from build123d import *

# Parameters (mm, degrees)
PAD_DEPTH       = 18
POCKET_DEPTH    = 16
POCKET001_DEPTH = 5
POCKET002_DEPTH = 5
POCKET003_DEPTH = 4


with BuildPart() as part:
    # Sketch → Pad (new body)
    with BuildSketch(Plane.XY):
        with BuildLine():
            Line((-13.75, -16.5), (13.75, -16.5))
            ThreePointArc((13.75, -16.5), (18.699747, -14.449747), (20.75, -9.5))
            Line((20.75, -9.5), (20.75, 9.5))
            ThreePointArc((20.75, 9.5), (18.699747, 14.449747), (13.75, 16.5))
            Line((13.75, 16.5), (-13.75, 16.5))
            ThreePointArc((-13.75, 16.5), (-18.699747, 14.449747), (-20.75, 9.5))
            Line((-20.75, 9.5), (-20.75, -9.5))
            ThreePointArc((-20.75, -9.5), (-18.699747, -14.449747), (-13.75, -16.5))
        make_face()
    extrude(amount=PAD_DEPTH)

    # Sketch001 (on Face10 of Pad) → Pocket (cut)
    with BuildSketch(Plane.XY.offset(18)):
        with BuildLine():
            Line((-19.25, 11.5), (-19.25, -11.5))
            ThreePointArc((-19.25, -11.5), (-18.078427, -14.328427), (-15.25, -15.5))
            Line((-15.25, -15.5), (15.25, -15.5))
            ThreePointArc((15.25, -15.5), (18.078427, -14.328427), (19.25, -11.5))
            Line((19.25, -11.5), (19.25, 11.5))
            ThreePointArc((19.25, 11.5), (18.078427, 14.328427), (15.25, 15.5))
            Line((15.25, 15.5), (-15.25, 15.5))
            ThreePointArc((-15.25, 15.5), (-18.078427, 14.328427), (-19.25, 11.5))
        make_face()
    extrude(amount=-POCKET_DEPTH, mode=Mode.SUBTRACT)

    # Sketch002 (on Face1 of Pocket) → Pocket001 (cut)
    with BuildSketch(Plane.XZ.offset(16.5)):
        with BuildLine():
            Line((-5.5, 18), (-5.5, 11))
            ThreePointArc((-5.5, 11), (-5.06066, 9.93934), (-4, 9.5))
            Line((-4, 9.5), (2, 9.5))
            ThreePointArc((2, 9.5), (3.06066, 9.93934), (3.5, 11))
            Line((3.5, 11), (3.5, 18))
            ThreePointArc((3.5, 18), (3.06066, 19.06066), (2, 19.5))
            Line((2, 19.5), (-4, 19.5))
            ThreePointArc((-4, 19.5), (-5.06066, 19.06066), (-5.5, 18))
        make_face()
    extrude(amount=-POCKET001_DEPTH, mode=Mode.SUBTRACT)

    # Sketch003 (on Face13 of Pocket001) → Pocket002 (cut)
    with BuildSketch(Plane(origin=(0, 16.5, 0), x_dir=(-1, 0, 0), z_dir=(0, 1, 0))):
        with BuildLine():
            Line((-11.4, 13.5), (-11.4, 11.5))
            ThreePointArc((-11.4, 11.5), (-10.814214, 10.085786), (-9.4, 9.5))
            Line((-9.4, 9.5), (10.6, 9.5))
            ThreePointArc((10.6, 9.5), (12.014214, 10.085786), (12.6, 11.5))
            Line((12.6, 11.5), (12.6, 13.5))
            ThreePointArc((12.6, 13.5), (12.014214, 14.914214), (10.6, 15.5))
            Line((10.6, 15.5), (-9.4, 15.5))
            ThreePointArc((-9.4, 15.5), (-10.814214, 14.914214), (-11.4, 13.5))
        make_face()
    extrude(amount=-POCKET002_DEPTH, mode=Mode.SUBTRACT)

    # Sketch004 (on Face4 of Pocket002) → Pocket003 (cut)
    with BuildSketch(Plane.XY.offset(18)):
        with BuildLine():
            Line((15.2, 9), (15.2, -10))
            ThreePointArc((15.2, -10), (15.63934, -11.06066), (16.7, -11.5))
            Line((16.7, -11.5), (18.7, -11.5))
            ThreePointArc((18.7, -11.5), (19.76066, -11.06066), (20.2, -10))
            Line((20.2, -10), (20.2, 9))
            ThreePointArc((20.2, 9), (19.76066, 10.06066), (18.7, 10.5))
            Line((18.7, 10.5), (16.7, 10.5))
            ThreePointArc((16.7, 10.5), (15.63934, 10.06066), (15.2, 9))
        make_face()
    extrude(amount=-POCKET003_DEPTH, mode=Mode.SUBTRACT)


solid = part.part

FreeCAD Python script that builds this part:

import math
import FreeCAD as App
import Part
import Sketcher

V = App.Vector
Q = App.Units.Quantity

doc = App.newDocument("Part")
body = doc.addObject("PartDesign::Body", "Body")

# Sketch on XY plane
sketch1 = body.newObject("Sketcher::SketchObject", "Sketch")
sketch1.AttachmentSupport = (doc.getObject("XY_Plane"), [""])
sketch1.MapMode = "FlatFace"
sketch1.addGeometry([
    Part.LineSegment(V(-13.75, -16.5, 0), V(13.75, -16.5, 0)),  # 0
    Part.ArcOfCircle(Part.Circle(V(13.749998, -9.499998, 0), V(0, 0, 1), 7.000002), math.radians(-89.999987), math.radians(-0.000013)),  # 1
    Part.LineSegment(V(20.75, -9.5, 0), V(20.75, 9.5, 0)),  # 2
    Part.ArcOfCircle(Part.Circle(V(13.749998, 9.499998, 0), V(0, 0, 1), 7.000002), math.radians(0.000013), math.radians(89.999987)),  # 3
    Part.LineSegment(V(13.75, 16.5, 0), V(-13.75, 16.5, 0)),  # 4
    Part.ArcOfCircle(Part.Circle(V(-13.749998, 9.499998, 0), V(0, 0, 1), 7.000002), math.radians(90.000013), math.radians(179.999987)),  # 5
    Part.LineSegment(V(-20.75, 9.5, 0), V(-20.75, -9.5, 0)),  # 6
    Part.ArcOfCircle(Part.Circle(V(-13.749998, -9.499998, 0), V(0, 0, 1), 7.000002), math.radians(-179.999987), math.radians(-90.000013)),  # 7
], False)
sketch1.addConstraint([
    Sketcher.Constraint("Tangent", 0, 2, 1, 1),
    Sketcher.Constraint("Tangent", 1, 2, 2, 1),
    Sketcher.Constraint("Tangent", 2, 2, 3, 1),
    Sketcher.Constraint("Tangent", 3, 2, 4, 1),
    Sketcher.Constraint("Tangent", 4, 2, 5, 1),
    Sketcher.Constraint("Tangent", 5, 2, 6, 1),
    Sketcher.Constraint("Tangent", 6, 2, 7, 1),
    Sketcher.Constraint("Tangent", 7, 2, 0, 1),
    Sketcher.Constraint("Horizontal", 0),
    Sketcher.Constraint("Vertical", 2),
    Sketcher.Constraint("Horizontal", 4),
    Sketcher.Constraint("Vertical", 6),
    Sketcher.Constraint("Equal", 1, 3),
    Sketcher.Constraint("Equal", 3, 5),
    Sketcher.Constraint("Equal", 5, 7),
    Sketcher.Constraint("Symmetric", 1, 3, 5, 3, -1, 1),
    Sketcher.Constraint("Radius", 1, Q("7.000002 mm")),
    Sketcher.Constraint("DistanceY", 2, 1, 2, 2, Q("19 mm")),
    Sketcher.Constraint("DistanceX", 0, 1, 0, 2, Q("27.5 mm")),
])
pad1 = body.newObject("PartDesign::Pad", "Pad")
pad1.Profile = sketch1
pad1.Length = 18

# Sketch on XY plane
sketch2 = body.newObject("Sketcher::SketchObject", "Sketch001")
sketch2.AttachmentSupport = (doc.getObject("XY_Plane"), [""])
sketch2.MapMode = "FlatFace"
sketch2.AttachmentOffset = App.Placement(V(0, 0, 18), App.Rotation())
sketch2.addGeometry([
    Part.LineSegment(V(-19.25, 11.5, 0), V(-19.25, -11.5, 0)),  # 0
    Part.ArcOfCircle(Part.Circle(V(-15.25, -11.5, 0), V(0, 0, 1), 4), math.radians(-179.999994), math.radians(-90.000006)),  # 1
    Part.LineSegment(V(-15.25, -15.5, 0), V(15.25, -15.5, 0)),  # 2
    Part.ArcOfCircle(Part.Circle(V(15.25, -11.5, 0), V(0, 0, 1), 4), math.radians(-89.999994), math.radians(-0.000006)),  # 3
    Part.LineSegment(V(19.25, -11.5, 0), V(19.25, 11.5, 0)),  # 4
    Part.ArcOfCircle(Part.Circle(V(15.25, 11.5, 0), V(0, 0, 1), 4), math.radians(0.000006), math.radians(89.999994)),  # 5
    Part.LineSegment(V(15.25, 15.5, 0), V(-15.25, 15.5, 0)),  # 6
    Part.ArcOfCircle(Part.Circle(V(-15.25, 11.5, 0), V(0, 0, 1), 4), math.radians(90.000006), math.radians(179.999994)),  # 7
], False)
sketch2.addConstraint([
    Sketcher.Constraint("Tangent", 0, 2, 1, 1),
    Sketcher.Constraint("Tangent", 1, 2, 2, 1),
    Sketcher.Constraint("Tangent", 2, 2, 3, 1),
    Sketcher.Constraint("Tangent", 3, 2, 4, 1),
    Sketcher.Constraint("Tangent", 4, 2, 5, 1),
    Sketcher.Constraint("Tangent", 5, 2, 6, 1),
    Sketcher.Constraint("Tangent", 6, 2, 7, 1),
    Sketcher.Constraint("Tangent", 7, 2, 0, 1),
    Sketcher.Constraint("Vertical", 0),
    Sketcher.Constraint("Horizontal", 2),
    Sketcher.Constraint("Vertical", 4),
    Sketcher.Constraint("Horizontal", 6),
    Sketcher.Constraint("Equal", 1, 3),
    Sketcher.Constraint("Equal", 3, 5),
    Sketcher.Constraint("Equal", 5, 7),
    Sketcher.Constraint("Symmetric", 1, 3, 5, 3, -1, 1),
    Sketcher.Constraint("Radius", 1, Q("4 mm")),
    Sketcher.Constraint("DistanceY", 0, 2, 0, 1, Q("23 mm")),
    Sketcher.Constraint("DistanceX", 2, 1, 2, 2, Q("30.5 mm")),
])
pocket1 = body.newObject("PartDesign::Pocket", "Pocket")
pocket1.Profile = sketch2
pocket1.Length = 16

# Sketch on XZ plane
sketch3 = body.newObject("Sketcher::SketchObject", "Sketch002")
sketch3.AttachmentSupport = (doc.getObject("XZ_Plane"), [""])
sketch3.MapMode = "FlatFace"
sketch3.AttachmentOffset = App.Placement(V(0, 0, 16.5), App.Rotation())
sketch3.addGeometry([
    Part.LineSegment(V(-5.5, 18, 0), V(-5.5, 11, 0)),  # 0
    Part.ArcOfCircle(Part.Circle(V(-3.999999, 11.000001, 0), V(0, 0, 1), 1.500001), math.radians(-179.999978), math.radians(-90.000022)),  # 1
    Part.LineSegment(V(-4, 9.5, 0), V(2, 9.5, 0)),  # 2
    Part.ArcOfCircle(Part.Circle(V(1.999999, 11.000001, 0), V(0, 0, 1), 1.500001), math.radians(-89.999978), math.radians(-0.000022)),  # 3
    Part.LineSegment(V(3.5, 11, 0), V(3.5, 18, 0)),  # 4
    Part.ArcOfCircle(Part.Circle(V(1.999999, 17.999999, 0), V(0, 0, 1), 1.500001), math.radians(0.000022), math.radians(89.999978)),  # 5
    Part.LineSegment(V(2, 19.5, 0), V(-4, 19.5, 0)),  # 6
    Part.ArcOfCircle(Part.Circle(V(-3.999999, 17.999999, 0), V(0, 0, 1), 1.500001), math.radians(90.000022), math.radians(179.999978)),  # 7
], False)
sketch3.addConstraint([
    Sketcher.Constraint("Tangent", 0, 2, 1, 1),
    Sketcher.Constraint("Tangent", 1, 2, 2, 1),
    Sketcher.Constraint("Tangent", 2, 2, 3, 1),
    Sketcher.Constraint("Tangent", 3, 2, 4, 1),
    Sketcher.Constraint("Tangent", 4, 2, 5, 1),
    Sketcher.Constraint("Tangent", 5, 2, 6, 1),
    Sketcher.Constraint("Tangent", 6, 2, 7, 1),
    Sketcher.Constraint("Tangent", 7, 2, 0, 1),
    Sketcher.Constraint("Vertical", 0),
    Sketcher.Constraint("Horizontal", 2),
    Sketcher.Constraint("Vertical", 4),
    Sketcher.Constraint("Horizontal", 6),
    Sketcher.Constraint("Equal", 1, 3),
    Sketcher.Constraint("Equal", 3, 5),
    Sketcher.Constraint("Equal", 5, 7),
    Sketcher.Constraint("Radius", 1, Q("1.500001 mm")),
    Sketcher.Constraint("DistanceX", 2, 1, 2, 2, Q("6 mm")),
    Sketcher.Constraint("DistanceY", 0, 2, 0, 1, Q("7 mm")),
    Sketcher.Constraint("DistanceX", 1, 3, -1, 1, Q("3.999999 mm")),
    Sketcher.Constraint("DistanceY", -1, 1, 1, 3, Q("11.000001 mm")),
])
pocket2 = body.newObject("PartDesign::Pocket", "Pocket001")
pocket2.Profile = sketch3
pocket2.Length = 5

# Sketch on XZ plane
sketch4 = body.newObject("Sketcher::SketchObject", "Sketch003")
sketch4.AttachmentSupport = (doc.getObject("XZ_Plane"), [""])
sketch4.MapMode = "FlatFace"
sketch4.AttachmentOffset = App.Placement(V(0, 0, -16.5), App.Rotation())
sketch4.addGeometry([
    Part.LineSegment(V(11.4, 13.5, 0), V(11.4, 11.5, 0)),  # 0
    Part.ArcOfCircle(Part.Circle(V(9.400001, 11.499999, 0), V(0, 0, 1), 1.999999), math.radians(-90.000043), math.radians(0.000043)),  # 1
    Part.LineSegment(V(9.4, 9.5, 0), V(-10.6, 9.5, 0)),  # 2
    Part.ArcOfCircle(Part.Circle(V(-10.600001, 11.499999, 0), V(0, 0, 1), 1.999999), math.radians(179.999957), math.radians(270.000043)),  # 3
    Part.LineSegment(V(-12.6, 11.5, 0), V(-12.6, 13.5, 0)),  # 4
    Part.ArcOfCircle(Part.Circle(V(-10.600001, 13.500001, 0), V(0, 0, 1), 1.999999), math.radians(89.999957), math.radians(180.000043)),  # 5
    Part.LineSegment(V(-10.6, 15.5, 0), V(9.4, 15.5, 0)),  # 6
    Part.ArcOfCircle(Part.Circle(V(9.400001, 13.500001, 0), V(0, 0, 1), 1.999999), math.radians(-0.000043), math.radians(90.000043)),  # 7
], False)
sketch4.addConstraint([
    Sketcher.Constraint("Tangent", 0, 2, 1, 2),
    Sketcher.Constraint("Tangent", 1, 1, 2, 1),
    Sketcher.Constraint("Tangent", 2, 2, 3, 2),
    Sketcher.Constraint("Tangent", 3, 1, 4, 1),
    Sketcher.Constraint("Tangent", 4, 2, 5, 2),
    Sketcher.Constraint("Tangent", 5, 1, 6, 1),
    Sketcher.Constraint("Tangent", 6, 2, 7, 2),
    Sketcher.Constraint("Tangent", 7, 1, 0, 1),
    Sketcher.Constraint("Vertical", 0),
    Sketcher.Constraint("Horizontal", 2),
    Sketcher.Constraint("Vertical", 4),
    Sketcher.Constraint("Horizontal", 6),
    Sketcher.Constraint("Equal", 1, 3),
    Sketcher.Constraint("Equal", 3, 5),
    Sketcher.Constraint("Equal", 5, 7),
    Sketcher.Constraint("Radius", 1, Q("1.999999 mm")),
    Sketcher.Constraint("DistanceX", 2, 2, 2, 1, Q("20 mm")),
    Sketcher.Constraint("DistanceY", 0, 2, 0, 1, Q("2 mm")),
    Sketcher.Constraint("DistanceX", -1, 1, 1, 3, Q("9.400001 mm")),
    Sketcher.Constraint("DistanceY", -1, 1, 1, 3, Q("11.499999 mm")),
])
pocket3 = body.newObject("PartDesign::Pocket", "Pocket002")
pocket3.Profile = sketch4
pocket3.Length = 5
pocket3.Reversed = True

# Sketch on XY plane
sketch5 = body.newObject("Sketcher::SketchObject", "Sketch004")
sketch5.AttachmentSupport = (doc.getObject("XY_Plane"), [""])
sketch5.MapMode = "FlatFace"
sketch5.AttachmentOffset = App.Placement(V(0, 0, 18), App.Rotation())
sketch5.addGeometry([
    Part.LineSegment(V(15.2, 9, 0), V(15.2, -10, 0)),  # 0
    Part.ArcOfCircle(Part.Circle(V(16.700001, -9.999999, 0), V(0, 0, 1), 1.500001), math.radians(-179.999978), math.radians(-90.000022)),  # 1
    Part.LineSegment(V(16.7, -11.5, 0), V(18.7, -11.5, 0)),  # 2
    Part.ArcOfCircle(Part.Circle(V(18.699999, -9.999999, 0), V(0, 0, 1), 1.500001), math.radians(-89.999978), math.radians(-0.000022)),  # 3
    Part.LineSegment(V(20.2, -10, 0), V(20.2, 9, 0)),  # 4
    Part.ArcOfCircle(Part.Circle(V(18.699999, 8.999999, 0), V(0, 0, 1), 1.500001), math.radians(0.000022), math.radians(89.999978)),  # 5
    Part.LineSegment(V(18.7, 10.5, 0), V(16.7, 10.5, 0)),  # 6
    Part.ArcOfCircle(Part.Circle(V(16.700001, 8.999999, 0), V(0, 0, 1), 1.500001), math.radians(90.000022), math.radians(179.999978)),  # 7
], False)
sketch5.addConstraint([
    Sketcher.Constraint("Tangent", 0, 2, 1, 1),
    Sketcher.Constraint("Tangent", 1, 2, 2, 1),
    Sketcher.Constraint("Tangent", 2, 2, 3, 1),
    Sketcher.Constraint("Tangent", 3, 2, 4, 1),
    Sketcher.Constraint("Tangent", 4, 2, 5, 1),
    Sketcher.Constraint("Tangent", 5, 2, 6, 1),
    Sketcher.Constraint("Tangent", 6, 2, 7, 1),
    Sketcher.Constraint("Tangent", 7, 2, 0, 1),
    Sketcher.Constraint("Vertical", 0),
    Sketcher.Constraint("Horizontal", 2),
    Sketcher.Constraint("Vertical", 4),
    Sketcher.Constraint("Horizontal", 6),
    Sketcher.Constraint("Equal", 1, 3),
    Sketcher.Constraint("Equal", 3, 5),
    Sketcher.Constraint("Equal", 5, 7),
    Sketcher.Constraint("Radius", 1, Q("1.500001 mm")),
    Sketcher.Constraint("DistanceX", 2, 1, 2, 2, Q("2 mm")),
    Sketcher.Constraint("DistanceY", 0, 2, 0, 1, Q("19 mm")),
    Sketcher.Constraint("DistanceY", 1, 3, -1, 1, Q("9.999999 mm")),
    Sketcher.Constraint("DistanceX", -1, 1, 1, 3, Q("16.700001 mm")),
])
pocket4 = body.newObject("PartDesign::Pocket", "Pocket003")
pocket4.Profile = sketch5
pocket4.Length = 4

doc.recompute()
